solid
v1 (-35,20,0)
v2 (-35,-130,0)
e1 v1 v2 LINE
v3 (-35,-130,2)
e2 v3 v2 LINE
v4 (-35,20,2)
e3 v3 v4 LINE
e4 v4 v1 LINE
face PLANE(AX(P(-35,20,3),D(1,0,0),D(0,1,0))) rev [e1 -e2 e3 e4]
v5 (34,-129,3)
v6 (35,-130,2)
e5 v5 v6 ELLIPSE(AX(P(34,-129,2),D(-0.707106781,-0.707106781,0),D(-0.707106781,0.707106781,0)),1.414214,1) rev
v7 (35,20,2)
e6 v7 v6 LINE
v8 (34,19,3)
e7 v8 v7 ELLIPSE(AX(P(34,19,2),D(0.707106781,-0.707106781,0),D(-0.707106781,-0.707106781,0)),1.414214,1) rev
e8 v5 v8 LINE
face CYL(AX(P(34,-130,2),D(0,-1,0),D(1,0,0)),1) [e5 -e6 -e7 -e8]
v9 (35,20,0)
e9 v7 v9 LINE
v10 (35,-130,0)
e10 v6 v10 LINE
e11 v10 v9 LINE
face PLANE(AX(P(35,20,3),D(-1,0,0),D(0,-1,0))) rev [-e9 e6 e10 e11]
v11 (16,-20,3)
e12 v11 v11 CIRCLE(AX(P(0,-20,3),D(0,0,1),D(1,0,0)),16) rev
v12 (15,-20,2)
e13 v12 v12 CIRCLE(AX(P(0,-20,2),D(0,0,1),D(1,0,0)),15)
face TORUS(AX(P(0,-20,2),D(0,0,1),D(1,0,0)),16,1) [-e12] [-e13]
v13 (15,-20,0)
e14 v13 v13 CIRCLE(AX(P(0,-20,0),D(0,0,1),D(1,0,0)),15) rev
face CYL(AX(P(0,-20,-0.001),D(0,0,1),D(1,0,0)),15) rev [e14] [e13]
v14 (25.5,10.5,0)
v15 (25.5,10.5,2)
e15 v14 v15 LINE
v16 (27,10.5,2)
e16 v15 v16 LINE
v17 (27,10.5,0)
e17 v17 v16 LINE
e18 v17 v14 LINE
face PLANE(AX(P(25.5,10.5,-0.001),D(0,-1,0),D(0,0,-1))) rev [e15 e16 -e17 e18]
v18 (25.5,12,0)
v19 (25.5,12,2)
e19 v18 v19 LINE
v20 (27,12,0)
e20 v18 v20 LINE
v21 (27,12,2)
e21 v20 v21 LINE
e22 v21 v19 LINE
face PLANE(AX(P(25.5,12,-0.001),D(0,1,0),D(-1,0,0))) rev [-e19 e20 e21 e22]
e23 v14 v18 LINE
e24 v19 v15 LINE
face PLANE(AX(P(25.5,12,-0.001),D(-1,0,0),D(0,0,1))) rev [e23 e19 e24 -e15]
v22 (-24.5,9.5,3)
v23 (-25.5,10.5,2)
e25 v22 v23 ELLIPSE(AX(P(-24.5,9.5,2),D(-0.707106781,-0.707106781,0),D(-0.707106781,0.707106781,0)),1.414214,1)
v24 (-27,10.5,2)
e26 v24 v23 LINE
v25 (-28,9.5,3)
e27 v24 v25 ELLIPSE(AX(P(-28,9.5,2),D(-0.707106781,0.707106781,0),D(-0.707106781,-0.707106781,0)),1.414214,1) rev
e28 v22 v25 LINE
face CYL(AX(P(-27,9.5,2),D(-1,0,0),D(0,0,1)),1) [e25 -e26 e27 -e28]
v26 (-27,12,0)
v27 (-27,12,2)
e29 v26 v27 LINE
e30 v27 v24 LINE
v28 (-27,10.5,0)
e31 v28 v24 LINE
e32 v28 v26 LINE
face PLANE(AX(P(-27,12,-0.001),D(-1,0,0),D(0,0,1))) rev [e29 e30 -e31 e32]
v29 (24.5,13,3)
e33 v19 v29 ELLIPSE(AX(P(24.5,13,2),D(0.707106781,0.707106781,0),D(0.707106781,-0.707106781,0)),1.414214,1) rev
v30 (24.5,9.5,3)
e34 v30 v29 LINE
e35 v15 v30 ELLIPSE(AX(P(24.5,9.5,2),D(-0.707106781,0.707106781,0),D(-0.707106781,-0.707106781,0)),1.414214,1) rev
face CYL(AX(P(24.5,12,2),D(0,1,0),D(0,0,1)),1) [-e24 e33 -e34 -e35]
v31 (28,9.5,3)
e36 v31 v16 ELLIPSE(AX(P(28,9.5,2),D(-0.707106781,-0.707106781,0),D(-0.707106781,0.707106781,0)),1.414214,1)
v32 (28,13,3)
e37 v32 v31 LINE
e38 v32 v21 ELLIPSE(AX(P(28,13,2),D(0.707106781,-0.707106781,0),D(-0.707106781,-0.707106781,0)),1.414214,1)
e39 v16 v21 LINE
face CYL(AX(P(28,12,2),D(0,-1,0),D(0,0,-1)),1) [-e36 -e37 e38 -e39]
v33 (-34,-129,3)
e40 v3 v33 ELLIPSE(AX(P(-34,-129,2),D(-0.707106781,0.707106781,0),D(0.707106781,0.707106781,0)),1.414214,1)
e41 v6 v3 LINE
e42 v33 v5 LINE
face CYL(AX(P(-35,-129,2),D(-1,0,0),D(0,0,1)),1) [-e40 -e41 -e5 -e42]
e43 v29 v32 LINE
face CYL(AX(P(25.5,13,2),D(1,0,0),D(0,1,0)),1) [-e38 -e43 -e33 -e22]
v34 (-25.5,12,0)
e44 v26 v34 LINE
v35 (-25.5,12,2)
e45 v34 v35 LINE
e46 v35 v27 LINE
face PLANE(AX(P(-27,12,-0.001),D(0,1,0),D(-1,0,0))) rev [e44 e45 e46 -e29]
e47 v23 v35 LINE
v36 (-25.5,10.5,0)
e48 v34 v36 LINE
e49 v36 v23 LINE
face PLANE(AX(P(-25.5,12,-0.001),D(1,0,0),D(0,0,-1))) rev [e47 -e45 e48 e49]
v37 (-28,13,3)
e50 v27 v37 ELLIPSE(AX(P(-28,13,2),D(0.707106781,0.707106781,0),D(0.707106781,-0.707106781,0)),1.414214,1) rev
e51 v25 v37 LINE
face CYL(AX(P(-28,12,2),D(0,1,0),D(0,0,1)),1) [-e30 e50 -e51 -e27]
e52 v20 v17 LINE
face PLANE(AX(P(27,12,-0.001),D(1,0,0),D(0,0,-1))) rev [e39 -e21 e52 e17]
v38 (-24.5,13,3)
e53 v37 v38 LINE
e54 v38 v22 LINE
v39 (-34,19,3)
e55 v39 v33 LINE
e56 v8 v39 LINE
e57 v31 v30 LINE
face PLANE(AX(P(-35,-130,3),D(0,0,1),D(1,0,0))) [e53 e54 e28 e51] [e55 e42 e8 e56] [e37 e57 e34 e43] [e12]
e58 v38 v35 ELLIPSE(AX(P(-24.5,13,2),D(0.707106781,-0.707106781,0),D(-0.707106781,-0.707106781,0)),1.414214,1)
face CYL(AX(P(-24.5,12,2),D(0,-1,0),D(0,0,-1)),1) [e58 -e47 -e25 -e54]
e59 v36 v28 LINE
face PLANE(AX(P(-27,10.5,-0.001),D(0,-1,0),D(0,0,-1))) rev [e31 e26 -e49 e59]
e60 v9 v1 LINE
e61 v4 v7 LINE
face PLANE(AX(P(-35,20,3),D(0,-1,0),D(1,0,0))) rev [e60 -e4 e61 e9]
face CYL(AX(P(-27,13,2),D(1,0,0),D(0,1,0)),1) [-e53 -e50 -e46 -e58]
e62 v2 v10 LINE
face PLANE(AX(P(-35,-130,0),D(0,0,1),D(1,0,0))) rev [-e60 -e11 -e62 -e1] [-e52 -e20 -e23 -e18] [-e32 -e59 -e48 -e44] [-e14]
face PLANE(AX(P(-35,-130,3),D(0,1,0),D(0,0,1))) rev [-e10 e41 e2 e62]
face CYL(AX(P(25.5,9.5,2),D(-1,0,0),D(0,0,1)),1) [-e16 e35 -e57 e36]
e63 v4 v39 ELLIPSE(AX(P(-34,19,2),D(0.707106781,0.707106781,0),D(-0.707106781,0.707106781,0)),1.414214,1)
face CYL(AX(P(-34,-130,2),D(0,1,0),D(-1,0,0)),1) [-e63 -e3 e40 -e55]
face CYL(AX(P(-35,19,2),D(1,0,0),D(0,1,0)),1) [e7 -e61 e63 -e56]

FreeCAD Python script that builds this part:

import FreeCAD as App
import Part
import Sketcher


def edges_at(feature, points):
    """Names of the edges that pass closest to the given points."""
    edges = feature.Shape.Edges
    near = lambda p: min(range(len(edges)), key=lambda i: edges[i].distToShape(Part.Vertex(*p))[0])
    return sorted({f"Edge{near(p) + 1}" for p in points})


def add_polygon(sketch, points):
    """Adds a closed chain of lines whose ends are joined by coincident constraints."""
    first, n = sketch.GeometryCount, len(points)
    for a, b in zip(points, points[1:] + points[:1]):
        sketch.addGeometry(Part.LineSegment(App.Vector(*a, 0), App.Vector(*b, 0)), False)
    for i in range(n):
        sketch.addConstraint(Sketcher.Constraint("Coincident", first + i, 2, first + (i + 1) % n, 1))

doc = App.newDocument("Part")
params = doc.addObject("Spreadsheet::Sheet", "Params")
for row, (alias, value) in enumerate([
    ("sketch1_width", "70 mm"),
    ("sketch1_height", "150 mm"),
    ("pad1_length", "3 mm"),
    ("sketch2_diameter", "30 mm"),
    ("sketch3_width", "1.5 mm"),
    ("sketch4_width", "1.5 mm"),
    ("fillet_radius", "1 mm"),
], start=1):
    params.set(f"A{row}", alias)
    params.set(f"B{row}", "=" + value)
    params.setAlias(f"B{row}", alias)

body = doc.addObject("PartDesign::Body", "Body")

# Sketch on XY plane
sketch1 = body.newObject("Sketcher::SketchObject", "Sketch")
sketch1.AttachmentSupport = (doc.getObject("XY_Plane"), [""])
sketch1.MapMode = "FlatFace"
add_polygon(sketch1, [(-35, 20), (-35, -130), (35, -130), (35, 20)])  # lines 0-3
sketch1.addConstraint([
    Sketcher.Constraint("Vertical", 0),
    Sketcher.Constraint("Horizontal", 1),
    Sketcher.Constraint("Vertical", 2),
    Sketcher.Constraint("Horizontal", 3),
    Sketcher.Constraint("DistanceX", 1, 1, 1, 2, 70.0),
    Sketcher.Constraint("DistanceY", 0, 2, 0, 1, 150.0),
    Sketcher.Constraint("DistanceX", 0, 2, -1, 1, 35.0),
    Sketcher.Constraint("DistanceY", 0, 2, -1, 1, 130.0),
])
sketch1.setExpression("Constraints[8]", "Params.sketch1_width")
sketch1.setExpression("Constraints[9]", "Params.sketch1_height")
pad1 = body.newObject("PartDesign::Pad", "Pad")
pad1.Profile = sketch1
pad1.setExpression("Length", "Params.pad1_length")

# Sketch on XY plane
sketch2 = body.newObject("Sketcher::SketchObject", "Sketch001")
sketch2.AttachmentSupport = (doc.getObject("XY_Plane"), [""])
sketch2.MapMode = "FlatFace"
sketch2.AttachmentOffset = App.Placement(App.Vector(0, 0, 3), App.Rotation())
sketch2.addGeometry(Part.Circle(App.Vector(0, -20, 0), App.Vector(0, 0, 1), 15), False)
sketch2.addConstraint([
    Sketcher.Constraint("PointOnObject", 0, 3, -2),
    Sketcher.Constraint("Diameter", 0, 30.0),
    Sketcher.Constraint("DistanceY", 0, 3, -1, 1, 20.0),
])
sketch2.setExpression("Constraints[1]", "Params.sketch2_diameter")
pocket1 = body.newObject("PartDesign::Pocket", "Pocket")
pocket1.Profile = sketch2
pocket1.Type = "UpToFirst"

# Sketch on XY plane
sketch3 = body.newObject("Sketcher::SketchObject", "Sketch002")
sketch3.AttachmentSupport = (doc.getObject("XY_Plane"), [""])
sketch3.MapMode = "FlatFace"
sketch3.AttachmentOffset = App.Placement(App.Vector(0, 0, 3), App.Rotation())
add_polygon(sketch3, [(-27, 12), (-27, 10.5), (-25.5, 10.5), (-25.5, 12)])  # lines 0-3
sketch3.addConstraint([
    Sketcher.Constraint("Vertical", 0),
    Sketcher.Constraint("Horizontal", 1),
    Sketcher.Constraint("Vertical", 2),
    Sketcher.Constraint("Horizontal", 3),
    Sketcher.Constraint("Equal", 3, 0),
    Sketcher.Constraint("DistanceX", 1, 1, 1, 2, 1.5),
    Sketcher.Constraint("DistanceX", 0, 2, -1, 1, 27.0),
    Sketcher.Constraint("DistanceY", -1, 1, 2, 2, 12.0),
])
sketch3.setExpression("Constraints[9]", "Params.sketch3_width")
pocket2 = body.newObject("PartDesign::Pocket", "Pocket001")
pocket2.Profile = sketch3
pocket2.Type = "UpToFirst"

# Sketch on XY plane
sketch4 = body.newObject("Sketcher::SketchObject", "Sketch003")
sketch4.AttachmentSupport = (doc.getObject("XY_Plane"), [""])
sketch4.MapMode = "FlatFace"
sketch4.AttachmentOffset = App.Placement(App.Vector(0, 0, 3), App.Rotation())
add_polygon(sketch4, [(25.5, 12), (25.5, 10.5), (27, 10.5), (27, 12)])  # lines 0-3
sketch4.addConstraint([
    Sketcher.Constraint("Vertical", 0),
    Sketcher.Constraint("Horizontal", 1),
    Sketcher.Constraint("Vertical", 2),
    Sketcher.Constraint("Horizontal", 3),
    Sketcher.Constraint("Equal", 3, 0),
    Sketcher.Constraint("DistanceX", 1, 1, 1, 2, 1.5),
    Sketcher.Constraint("DistanceX", -1, 1, 1, 2, 27.0),
    Sketcher.Constraint("DistanceY", -1, 1, 2, 2, 12.0),
])
sketch4.setExpression("Constraints[9]", "Params.sketch4_width")
pocket3 = body.newObject("PartDesign::Pocket", "Pocket002")
pocket3.Profile = sketch4
pocket3.Type = "UpToFirst"
doc.recompute()

fillet = body.newObject("PartDesign::Fillet", "Fillet")
fillet.Base = (pocket3, edges_at(pocket3, [
    (35, -55, 3),
    (0, 20, 3),
    (-15, -20, 3),
    (-27, 11.25, 3),
    (-26.25, 10.5, 3),
    (-25.5, 11.25, 3),
    (-26.25, 12, 3),
    (25.5, 11.25, 3),
    (26.25, 10.5, 3),
    (27, 11.25, 3),
    (26.25, 12, 3),
    (-35, -55, 3),
    (0, -130, 3),
]))
fillet.setExpression("Radius", "Params.fillet_radius")

doc.recompute()
